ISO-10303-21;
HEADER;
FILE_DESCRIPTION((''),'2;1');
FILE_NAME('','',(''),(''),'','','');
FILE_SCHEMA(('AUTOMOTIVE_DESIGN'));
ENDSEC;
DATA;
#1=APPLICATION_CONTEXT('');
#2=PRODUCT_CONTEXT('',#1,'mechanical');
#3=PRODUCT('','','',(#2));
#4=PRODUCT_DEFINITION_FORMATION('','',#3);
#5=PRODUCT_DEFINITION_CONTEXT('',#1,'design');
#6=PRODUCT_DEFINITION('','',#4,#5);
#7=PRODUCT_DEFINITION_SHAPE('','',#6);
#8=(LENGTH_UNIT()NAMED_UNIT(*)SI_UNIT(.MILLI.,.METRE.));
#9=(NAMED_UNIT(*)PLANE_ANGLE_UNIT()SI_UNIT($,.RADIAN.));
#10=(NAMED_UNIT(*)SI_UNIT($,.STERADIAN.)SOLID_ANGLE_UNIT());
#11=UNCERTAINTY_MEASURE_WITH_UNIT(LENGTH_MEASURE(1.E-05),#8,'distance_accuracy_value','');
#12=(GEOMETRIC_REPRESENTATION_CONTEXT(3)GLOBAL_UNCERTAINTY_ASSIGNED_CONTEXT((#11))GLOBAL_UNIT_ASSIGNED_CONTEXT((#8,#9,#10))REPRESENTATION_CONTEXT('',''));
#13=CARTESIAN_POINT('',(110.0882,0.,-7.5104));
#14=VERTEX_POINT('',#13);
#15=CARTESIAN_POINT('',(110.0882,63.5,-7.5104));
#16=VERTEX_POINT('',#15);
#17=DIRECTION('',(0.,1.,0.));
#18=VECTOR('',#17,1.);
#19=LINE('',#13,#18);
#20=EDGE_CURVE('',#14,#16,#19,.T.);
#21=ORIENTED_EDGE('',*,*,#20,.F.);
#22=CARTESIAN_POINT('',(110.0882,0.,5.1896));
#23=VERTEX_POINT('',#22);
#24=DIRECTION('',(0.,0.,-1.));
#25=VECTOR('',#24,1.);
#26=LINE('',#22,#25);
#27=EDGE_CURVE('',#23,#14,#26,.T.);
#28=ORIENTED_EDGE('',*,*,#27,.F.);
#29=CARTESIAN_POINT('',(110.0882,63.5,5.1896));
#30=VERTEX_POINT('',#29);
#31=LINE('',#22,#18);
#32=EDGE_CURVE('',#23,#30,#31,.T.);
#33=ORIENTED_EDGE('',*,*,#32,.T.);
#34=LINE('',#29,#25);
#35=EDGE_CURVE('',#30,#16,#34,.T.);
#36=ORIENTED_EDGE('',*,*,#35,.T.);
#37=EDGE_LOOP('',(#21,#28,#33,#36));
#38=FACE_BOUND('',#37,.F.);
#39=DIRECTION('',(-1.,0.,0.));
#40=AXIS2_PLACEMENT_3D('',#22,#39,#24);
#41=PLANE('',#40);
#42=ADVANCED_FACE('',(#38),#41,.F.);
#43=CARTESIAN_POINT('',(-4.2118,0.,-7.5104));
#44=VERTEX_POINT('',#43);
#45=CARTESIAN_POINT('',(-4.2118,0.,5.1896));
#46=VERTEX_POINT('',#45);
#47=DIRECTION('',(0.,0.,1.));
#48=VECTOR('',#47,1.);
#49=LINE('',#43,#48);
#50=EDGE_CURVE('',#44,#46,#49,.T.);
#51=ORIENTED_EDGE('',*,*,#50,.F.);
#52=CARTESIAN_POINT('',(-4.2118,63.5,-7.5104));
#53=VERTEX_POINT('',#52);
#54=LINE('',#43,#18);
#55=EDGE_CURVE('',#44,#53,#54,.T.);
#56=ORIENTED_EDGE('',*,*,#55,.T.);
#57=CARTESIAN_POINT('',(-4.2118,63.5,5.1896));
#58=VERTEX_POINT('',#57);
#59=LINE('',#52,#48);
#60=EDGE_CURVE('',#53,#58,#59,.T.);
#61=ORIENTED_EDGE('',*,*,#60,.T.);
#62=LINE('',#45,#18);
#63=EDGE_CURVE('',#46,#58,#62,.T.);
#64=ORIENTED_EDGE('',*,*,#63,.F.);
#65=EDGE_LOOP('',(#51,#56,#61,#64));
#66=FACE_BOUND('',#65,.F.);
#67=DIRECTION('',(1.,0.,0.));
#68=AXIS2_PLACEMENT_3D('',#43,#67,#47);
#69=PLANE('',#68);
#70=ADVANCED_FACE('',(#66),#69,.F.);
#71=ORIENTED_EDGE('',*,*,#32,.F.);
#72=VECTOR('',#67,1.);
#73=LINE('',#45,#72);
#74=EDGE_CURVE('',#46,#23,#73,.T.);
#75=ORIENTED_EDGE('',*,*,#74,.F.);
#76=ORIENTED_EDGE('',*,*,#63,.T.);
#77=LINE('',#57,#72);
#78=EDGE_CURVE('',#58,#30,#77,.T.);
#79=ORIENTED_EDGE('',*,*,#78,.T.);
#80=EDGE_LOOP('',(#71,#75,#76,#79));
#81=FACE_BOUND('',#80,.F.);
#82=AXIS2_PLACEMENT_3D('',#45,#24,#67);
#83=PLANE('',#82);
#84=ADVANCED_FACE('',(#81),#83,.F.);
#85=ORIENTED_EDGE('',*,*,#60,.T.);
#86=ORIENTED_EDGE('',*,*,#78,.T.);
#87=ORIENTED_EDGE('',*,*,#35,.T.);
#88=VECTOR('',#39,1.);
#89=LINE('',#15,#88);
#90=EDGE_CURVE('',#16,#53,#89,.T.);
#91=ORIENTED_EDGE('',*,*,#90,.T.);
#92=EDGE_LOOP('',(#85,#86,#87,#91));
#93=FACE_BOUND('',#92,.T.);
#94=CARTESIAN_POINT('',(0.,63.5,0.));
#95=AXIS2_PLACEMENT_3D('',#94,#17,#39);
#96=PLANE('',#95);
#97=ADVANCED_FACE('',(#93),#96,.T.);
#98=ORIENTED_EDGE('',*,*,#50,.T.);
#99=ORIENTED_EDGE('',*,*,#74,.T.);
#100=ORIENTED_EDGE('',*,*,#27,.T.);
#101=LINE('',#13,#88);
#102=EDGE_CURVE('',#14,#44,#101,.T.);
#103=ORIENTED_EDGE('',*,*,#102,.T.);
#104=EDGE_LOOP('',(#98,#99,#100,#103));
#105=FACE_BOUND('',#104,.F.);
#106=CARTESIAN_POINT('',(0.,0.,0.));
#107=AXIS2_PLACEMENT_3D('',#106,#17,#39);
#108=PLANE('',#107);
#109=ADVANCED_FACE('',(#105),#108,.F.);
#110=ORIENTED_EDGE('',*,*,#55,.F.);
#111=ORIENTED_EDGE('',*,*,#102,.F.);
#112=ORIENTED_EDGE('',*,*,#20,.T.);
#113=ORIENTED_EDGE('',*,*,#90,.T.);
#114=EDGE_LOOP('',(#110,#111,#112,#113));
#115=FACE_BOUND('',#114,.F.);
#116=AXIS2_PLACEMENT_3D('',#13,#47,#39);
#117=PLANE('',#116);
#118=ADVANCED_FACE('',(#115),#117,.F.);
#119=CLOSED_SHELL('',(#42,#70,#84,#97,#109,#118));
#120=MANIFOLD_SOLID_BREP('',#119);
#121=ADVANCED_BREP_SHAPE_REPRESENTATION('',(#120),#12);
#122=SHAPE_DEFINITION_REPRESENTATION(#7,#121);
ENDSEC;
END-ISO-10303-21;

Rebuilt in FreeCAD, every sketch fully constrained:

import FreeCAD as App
import Part
import Sketcher

V = App.Vector
Q = App.Units.Quantity


def add_polygon(sketch, points):
    """Adds a closed chain of lines whose ends are joined by coincident constraints."""
    first, n = sketch.GeometryCount, len(points)
    for a, b in zip(points, points[1:] + points[:1]):
        sketch.addGeometry(Part.LineSegment(App.Vector(*a, 0), App.Vector(*b, 0)), False)
    for i in range(n):
        sketch.addConstraint(Sketcher.Constraint("Coincident", first + i, 2, first + (i + 1) % n, 1))

doc = App.newDocument("Part")
params = doc.addObject("Spreadsheet::Sheet", "Params")
for row, (alias, value) in enumerate([
    ("sketch1_width", "4.5 in"),
    ("sketch1_height", "0.5 in"),
    ("pad1_length", "2.5 in"),
], start=1):
    params.set(f"A{row}", alias)
    params.set(f"B{row}", "=" + value)
    params.setAlias(f"B{row}", alias)

body = doc.addObject("PartDesign::Body", "Body")

# Sketch on XZ plane
sketch1 = body.newObject("Sketcher::SketchObject", "Sketch")
sketch1.AttachmentSupport = (doc.getObject("XZ_Plane"), [""])
sketch1.MapMode = "FlatFace"
add_polygon(sketch1, [(-4.2118, -7.5104), (-4.2118, 5.1896), (110.0882, 5.1896), (110.0882, -7.5104)])  # lines 0-3
sketch1.addConstraint([
    Sketcher.Constraint("Vertical", 0),
    Sketcher.Constraint("Horizontal", 1),
    Sketcher.Constraint("Vertical", 2),
    Sketcher.Constraint("Horizontal", 3),
    Sketcher.Constraint("DistanceX", 1, 1, 1, 2, Q("4.5 in")),
    Sketcher.Constraint("DistanceY", 0, 1, 0, 2, Q("0.5 in")),
    Sketcher.Constraint("DistanceX", 0, 2, -1, 1, 4.2118),
    Sketcher.Constraint("DistanceY", -1, 1, 0, 2, 5.1896),
])
sketch1.setExpression("Constraints[8]", "Params.sketch1_width")
sketch1.setExpression("Constraints[9]", "Params.sketch1_height")
pad1 = body.newObject("PartDesign::Pad", "Pad")
pad1.Profile = sketch1
pad1.setExpression("Length", "Params.pad1_length")
pad1.Reversed = True

doc.recompute()
